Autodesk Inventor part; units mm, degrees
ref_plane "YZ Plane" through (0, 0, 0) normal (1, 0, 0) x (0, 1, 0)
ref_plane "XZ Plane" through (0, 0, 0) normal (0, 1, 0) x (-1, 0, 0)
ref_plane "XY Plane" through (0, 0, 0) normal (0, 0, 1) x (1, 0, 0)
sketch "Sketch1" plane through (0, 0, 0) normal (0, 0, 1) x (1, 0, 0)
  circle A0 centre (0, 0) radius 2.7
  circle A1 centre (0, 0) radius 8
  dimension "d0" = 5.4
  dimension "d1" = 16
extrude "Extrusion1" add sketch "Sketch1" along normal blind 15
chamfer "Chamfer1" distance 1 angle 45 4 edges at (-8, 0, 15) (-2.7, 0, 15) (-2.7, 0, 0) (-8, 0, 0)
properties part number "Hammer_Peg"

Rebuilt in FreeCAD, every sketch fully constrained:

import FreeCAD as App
import Part
import Sketcher


def edges_at(feature, points):
    """Names of the edges that pass closest to the given points."""
    edges = feature.Shape.Edges
    near = lambda p: min(range(len(edges)), key=lambda i: edges[i].distToShape(Part.Vertex(*p))[0])
    return sorted({f"Edge{near(p) + 1}" for p in points})

doc = App.newDocument("Part")
body = doc.addObject("PartDesign::Body", "Body")

# Sketch on XY plane
sketch1 = doc.addObject("Sketcher::SketchObject", "Sketch")
body.addObject(sketch1)
sketch1.AttachmentSupport = (doc.XY_Plane, [""])
sketch1.MapMode = "FlatFace"
sketch1.addGeometry([
    Part.Circle(App.Vector(0, 0, 0), App.Vector(0, 0, 1), 8),
    Part.Circle(App.Vector(0, 0, 0), App.Vector(0, 0, 1), 2.7),
], False)
sketch1.addConstraint([
    Sketcher.Constraint("Coincident", 0, 3, -1, 1),
    Sketcher.Constraint("Coincident", 1, 3, -1, 1),
    Sketcher.Constraint("Diameter", 0, 16.0),
    Sketcher.Constraint("Diameter", 1, 5.4),
])
pad1 = doc.addObject("PartDesign::Pad", "Pad")
body.addObject(pad1)
pad1.Profile = sketch1
pad1.Length = 15
doc.recompute()

chamfer = doc.addObject("PartDesign::Chamfer", "Chamfer")
body.addObject(chamfer)
chamfer.Base = (pad1, edges_at(pad1, [
    (-8, 0, 15),
    (-2.7, 0, 15),
    (-2.7, 0, 0),
    (-8, 0, 0),
]))
chamfer.Size = 1

doc.recompute()
